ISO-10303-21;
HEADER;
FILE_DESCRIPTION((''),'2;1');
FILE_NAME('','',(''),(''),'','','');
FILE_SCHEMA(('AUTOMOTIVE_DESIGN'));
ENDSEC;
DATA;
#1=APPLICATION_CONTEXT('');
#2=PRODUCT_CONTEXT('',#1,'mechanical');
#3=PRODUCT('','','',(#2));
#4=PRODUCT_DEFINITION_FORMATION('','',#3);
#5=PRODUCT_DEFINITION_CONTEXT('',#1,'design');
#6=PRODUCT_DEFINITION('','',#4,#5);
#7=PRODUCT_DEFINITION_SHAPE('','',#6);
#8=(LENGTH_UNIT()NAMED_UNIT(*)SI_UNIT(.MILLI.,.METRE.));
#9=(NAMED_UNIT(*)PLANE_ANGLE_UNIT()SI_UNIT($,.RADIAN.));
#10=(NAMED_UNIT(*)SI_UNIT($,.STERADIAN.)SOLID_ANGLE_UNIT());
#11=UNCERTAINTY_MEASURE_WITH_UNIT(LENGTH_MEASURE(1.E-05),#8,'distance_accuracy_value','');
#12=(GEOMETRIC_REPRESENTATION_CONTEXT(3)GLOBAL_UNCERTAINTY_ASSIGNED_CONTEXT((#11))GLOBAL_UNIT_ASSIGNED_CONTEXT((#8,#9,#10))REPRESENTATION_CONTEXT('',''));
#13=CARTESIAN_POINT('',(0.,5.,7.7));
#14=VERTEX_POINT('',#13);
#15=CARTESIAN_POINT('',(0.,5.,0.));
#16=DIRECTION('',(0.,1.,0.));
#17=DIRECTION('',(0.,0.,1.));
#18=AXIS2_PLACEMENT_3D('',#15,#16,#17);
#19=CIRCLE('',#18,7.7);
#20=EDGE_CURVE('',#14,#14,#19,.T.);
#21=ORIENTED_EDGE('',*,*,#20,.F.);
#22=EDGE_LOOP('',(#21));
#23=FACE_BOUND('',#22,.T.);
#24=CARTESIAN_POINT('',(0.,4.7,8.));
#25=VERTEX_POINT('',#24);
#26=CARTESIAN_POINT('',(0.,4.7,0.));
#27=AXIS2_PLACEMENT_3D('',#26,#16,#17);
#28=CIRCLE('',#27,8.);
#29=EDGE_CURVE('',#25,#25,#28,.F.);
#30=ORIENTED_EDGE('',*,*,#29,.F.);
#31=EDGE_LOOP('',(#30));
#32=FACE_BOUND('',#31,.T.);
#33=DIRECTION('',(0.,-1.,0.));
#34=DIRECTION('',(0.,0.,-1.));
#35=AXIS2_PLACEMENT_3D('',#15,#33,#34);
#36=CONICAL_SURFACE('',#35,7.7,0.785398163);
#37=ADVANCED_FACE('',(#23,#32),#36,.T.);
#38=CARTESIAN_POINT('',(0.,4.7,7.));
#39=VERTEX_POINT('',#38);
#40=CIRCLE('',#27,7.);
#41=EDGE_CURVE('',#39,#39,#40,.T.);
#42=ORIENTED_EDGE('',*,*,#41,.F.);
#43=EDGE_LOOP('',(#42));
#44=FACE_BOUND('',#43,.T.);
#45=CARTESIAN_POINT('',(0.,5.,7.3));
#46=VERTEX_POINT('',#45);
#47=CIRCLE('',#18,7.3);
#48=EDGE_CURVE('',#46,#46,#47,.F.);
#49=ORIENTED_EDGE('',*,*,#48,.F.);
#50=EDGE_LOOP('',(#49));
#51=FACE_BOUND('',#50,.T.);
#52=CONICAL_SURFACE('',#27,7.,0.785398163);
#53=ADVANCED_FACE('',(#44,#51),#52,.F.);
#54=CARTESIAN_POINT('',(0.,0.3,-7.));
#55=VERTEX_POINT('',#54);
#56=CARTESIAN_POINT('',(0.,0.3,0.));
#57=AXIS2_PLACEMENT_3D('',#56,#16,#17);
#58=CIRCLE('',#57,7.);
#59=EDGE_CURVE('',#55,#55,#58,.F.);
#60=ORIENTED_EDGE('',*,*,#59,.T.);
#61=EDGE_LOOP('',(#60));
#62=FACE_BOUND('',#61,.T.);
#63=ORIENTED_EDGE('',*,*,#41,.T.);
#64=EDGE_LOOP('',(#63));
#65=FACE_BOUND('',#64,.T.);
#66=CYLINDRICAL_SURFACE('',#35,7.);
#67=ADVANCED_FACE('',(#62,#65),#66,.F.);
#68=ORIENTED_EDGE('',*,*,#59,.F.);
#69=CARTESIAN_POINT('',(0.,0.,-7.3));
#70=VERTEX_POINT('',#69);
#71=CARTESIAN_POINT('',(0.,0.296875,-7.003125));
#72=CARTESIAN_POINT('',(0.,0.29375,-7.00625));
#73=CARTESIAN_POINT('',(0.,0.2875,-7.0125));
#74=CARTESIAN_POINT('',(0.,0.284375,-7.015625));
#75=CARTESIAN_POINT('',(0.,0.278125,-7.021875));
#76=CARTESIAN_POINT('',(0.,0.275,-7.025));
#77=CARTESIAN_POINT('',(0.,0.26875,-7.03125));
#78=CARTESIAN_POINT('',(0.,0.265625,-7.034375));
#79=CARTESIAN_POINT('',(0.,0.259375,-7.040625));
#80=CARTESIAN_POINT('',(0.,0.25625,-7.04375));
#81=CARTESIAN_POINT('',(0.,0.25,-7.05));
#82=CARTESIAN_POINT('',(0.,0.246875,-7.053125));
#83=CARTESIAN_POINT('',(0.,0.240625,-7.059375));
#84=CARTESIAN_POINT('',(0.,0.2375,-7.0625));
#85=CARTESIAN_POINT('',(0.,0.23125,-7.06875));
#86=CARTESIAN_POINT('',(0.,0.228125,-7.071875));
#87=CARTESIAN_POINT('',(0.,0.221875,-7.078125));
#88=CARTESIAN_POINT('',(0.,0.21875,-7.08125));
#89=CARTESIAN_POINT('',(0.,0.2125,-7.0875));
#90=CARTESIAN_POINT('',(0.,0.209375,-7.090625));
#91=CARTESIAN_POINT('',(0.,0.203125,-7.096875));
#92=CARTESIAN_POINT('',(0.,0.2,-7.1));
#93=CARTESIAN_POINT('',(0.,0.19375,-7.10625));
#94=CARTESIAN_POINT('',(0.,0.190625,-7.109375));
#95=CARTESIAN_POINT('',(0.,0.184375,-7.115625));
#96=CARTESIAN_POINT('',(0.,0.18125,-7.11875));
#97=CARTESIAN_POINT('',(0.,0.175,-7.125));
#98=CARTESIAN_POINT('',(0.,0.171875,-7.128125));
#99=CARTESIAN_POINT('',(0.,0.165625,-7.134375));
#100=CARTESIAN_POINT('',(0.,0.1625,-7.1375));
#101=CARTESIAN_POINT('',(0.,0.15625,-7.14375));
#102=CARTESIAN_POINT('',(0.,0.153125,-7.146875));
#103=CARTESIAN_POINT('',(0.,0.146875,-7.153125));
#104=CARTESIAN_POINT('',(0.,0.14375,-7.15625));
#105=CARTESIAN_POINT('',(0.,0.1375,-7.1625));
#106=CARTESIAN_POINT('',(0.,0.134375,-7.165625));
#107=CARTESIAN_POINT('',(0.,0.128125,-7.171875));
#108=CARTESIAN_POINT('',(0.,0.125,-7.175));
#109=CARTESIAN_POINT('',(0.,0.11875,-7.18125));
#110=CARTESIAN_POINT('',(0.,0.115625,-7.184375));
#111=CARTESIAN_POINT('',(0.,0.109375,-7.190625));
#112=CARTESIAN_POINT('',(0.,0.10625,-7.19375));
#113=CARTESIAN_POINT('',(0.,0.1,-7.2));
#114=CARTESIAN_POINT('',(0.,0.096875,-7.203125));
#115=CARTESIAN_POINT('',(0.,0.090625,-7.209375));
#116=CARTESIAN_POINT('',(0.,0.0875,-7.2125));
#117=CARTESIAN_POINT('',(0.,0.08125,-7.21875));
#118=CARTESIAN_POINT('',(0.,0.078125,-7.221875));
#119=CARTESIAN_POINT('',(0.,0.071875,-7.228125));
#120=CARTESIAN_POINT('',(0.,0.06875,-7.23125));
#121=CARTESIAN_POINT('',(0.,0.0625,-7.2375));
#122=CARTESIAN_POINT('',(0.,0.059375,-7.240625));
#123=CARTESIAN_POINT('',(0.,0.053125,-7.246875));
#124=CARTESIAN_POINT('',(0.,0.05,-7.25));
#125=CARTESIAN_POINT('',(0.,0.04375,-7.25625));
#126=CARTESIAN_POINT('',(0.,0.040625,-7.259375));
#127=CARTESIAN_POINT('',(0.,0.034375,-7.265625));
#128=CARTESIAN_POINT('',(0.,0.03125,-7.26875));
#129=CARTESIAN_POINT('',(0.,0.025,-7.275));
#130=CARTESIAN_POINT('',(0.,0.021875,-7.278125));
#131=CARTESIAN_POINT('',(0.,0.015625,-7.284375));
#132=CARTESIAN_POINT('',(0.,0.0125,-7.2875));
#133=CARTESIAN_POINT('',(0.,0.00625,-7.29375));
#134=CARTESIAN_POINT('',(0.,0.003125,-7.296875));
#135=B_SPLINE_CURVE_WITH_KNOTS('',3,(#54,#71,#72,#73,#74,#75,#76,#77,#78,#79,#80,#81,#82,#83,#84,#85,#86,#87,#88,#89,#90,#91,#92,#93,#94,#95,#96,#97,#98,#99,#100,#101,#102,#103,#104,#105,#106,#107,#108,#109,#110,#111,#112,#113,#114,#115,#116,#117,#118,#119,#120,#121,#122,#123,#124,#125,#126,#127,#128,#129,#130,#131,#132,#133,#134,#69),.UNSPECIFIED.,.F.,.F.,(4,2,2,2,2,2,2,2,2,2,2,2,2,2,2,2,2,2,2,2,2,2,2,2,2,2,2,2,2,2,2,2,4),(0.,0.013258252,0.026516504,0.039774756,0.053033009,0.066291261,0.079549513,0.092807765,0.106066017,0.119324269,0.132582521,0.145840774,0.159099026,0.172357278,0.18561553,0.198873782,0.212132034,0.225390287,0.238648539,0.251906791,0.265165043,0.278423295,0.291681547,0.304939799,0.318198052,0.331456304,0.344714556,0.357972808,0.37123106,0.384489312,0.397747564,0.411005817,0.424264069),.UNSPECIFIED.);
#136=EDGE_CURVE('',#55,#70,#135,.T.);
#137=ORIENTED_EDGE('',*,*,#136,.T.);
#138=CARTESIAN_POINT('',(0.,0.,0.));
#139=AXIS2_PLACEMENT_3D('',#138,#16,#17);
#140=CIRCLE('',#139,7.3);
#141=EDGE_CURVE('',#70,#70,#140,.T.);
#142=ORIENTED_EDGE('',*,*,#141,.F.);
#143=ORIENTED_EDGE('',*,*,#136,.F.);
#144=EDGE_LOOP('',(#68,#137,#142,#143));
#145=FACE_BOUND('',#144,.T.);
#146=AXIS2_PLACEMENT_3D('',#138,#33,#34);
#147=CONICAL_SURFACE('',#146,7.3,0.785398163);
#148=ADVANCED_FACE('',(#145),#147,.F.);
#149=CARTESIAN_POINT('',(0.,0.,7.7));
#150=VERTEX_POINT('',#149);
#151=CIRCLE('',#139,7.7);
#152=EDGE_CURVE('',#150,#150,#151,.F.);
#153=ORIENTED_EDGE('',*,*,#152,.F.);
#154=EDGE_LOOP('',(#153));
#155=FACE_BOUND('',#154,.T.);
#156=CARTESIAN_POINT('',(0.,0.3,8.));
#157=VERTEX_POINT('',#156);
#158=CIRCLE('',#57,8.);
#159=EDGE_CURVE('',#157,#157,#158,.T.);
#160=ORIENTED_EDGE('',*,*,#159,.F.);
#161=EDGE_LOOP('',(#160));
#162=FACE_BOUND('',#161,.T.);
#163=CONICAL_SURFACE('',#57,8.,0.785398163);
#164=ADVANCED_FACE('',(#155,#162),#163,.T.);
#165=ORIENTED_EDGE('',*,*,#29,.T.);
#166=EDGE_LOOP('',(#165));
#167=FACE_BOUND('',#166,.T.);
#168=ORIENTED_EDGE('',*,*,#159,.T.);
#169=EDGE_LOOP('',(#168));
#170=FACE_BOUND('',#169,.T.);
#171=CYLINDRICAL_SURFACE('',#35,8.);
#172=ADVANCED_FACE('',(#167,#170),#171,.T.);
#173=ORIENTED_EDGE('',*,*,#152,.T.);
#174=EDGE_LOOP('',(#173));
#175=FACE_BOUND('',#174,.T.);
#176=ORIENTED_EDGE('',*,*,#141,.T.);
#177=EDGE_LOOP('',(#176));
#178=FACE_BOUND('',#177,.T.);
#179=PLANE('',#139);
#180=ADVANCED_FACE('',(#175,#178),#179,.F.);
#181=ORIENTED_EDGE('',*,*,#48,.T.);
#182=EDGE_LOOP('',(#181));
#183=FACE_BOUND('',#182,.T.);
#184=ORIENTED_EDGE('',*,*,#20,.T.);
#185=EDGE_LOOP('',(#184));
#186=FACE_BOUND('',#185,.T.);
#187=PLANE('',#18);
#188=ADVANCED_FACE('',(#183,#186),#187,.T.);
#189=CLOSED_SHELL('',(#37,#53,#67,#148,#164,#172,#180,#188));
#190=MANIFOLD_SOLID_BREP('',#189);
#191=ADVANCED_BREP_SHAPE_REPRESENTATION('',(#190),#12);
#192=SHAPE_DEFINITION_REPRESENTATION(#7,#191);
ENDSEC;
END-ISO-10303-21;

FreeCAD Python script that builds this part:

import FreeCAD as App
import Part
import Sketcher

V = App.Vector
Q = App.Units.Quantity


def edges_at(feature, points):
    """Names of the edges that pass closest to the given points."""
    edges = feature.Shape.Edges
    near = lambda p: min(range(len(edges)), key=lambda i: edges[i].distToShape(Part.Vertex(*p))[0])
    return sorted({f"Edge{near(p) + 1}" for p in points})

doc = App.newDocument("Part")
body = doc.addObject("PartDesign::Body", "Body")

sketch1 = body.newObject("Sketcher::SketchObject", "Sketch")
sketch1.AttachmentSupport = (doc.getObject("XZ_Plane"), [""])
sketch1.MapMode = "FlatFace"
sketch1.addGeometry(Part.Circle(V(0, 0, 0), V(0, 0, 1), 8), False)
sketch1.addGeometry(Part.Circle(V(0, 0, 0), V(0, 0, 1), 7), False)
sketch1.addConstraint(Sketcher.Constraint("Coincident", 0, 3, -1, 1))
sketch1.addConstraint(Sketcher.Constraint("Coincident", 1, 3, -1, 1))
sketch1.addConstraint(Sketcher.Constraint("Diameter", 0, Q("16 mm")))
sketch1.addConstraint(Sketcher.Constraint("Diameter", 1, Q("14 mm")))
pad1 = body.newObject("PartDesign::Pad", "Pad")
pad1.Profile = sketch1
pad1.Length = 5
pad1.Reversed = True
doc.recompute()

chamfer = body.newObject("PartDesign::Chamfer", "Chamfer")
chamfer.Base = (pad1, edges_at(pad1, [
    (0, 0, -8),
    (0, 5, -8),
    (0, 0, -7),
    (0, 5, -7),
]))
chamfer.Size = 0.3

doc.recompute()
